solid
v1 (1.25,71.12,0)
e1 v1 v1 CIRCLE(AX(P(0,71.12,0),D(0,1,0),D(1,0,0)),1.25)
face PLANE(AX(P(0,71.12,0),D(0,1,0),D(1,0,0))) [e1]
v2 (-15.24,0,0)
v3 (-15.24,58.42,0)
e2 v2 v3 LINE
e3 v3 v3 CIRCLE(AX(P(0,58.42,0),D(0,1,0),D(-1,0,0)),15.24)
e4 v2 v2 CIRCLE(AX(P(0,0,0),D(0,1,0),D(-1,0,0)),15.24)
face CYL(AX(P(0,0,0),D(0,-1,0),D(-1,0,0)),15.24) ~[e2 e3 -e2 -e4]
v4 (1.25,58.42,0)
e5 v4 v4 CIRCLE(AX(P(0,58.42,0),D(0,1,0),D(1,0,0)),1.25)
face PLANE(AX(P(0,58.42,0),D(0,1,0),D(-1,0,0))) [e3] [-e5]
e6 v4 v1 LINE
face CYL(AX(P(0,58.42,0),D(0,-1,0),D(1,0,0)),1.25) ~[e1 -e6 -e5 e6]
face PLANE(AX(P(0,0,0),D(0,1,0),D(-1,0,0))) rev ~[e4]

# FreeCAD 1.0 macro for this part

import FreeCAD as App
import Part
import Sketcher
from FreeCAD import Vector
Q = App.Units.Quantity

doc = App.newDocument("Part")
body = doc.addObject("PartDesign::Body", "Body")

sketch1 = doc.addObject("Sketcher::SketchObject", "Sketch")
body.addObject(sketch1)
sketch1.AttachmentSupport = (doc.XZ_Plane, [""])
sketch1.MapMode = "FlatFace"
sketch1.addGeometry(Part.Circle(Vector(0, 0, 0), Vector(0, 0, 1), 15.24), False)
sketch1.addConstraint([
    Sketcher.Constraint("Coincident", 0, 3, -1, 1),
    Sketcher.Constraint("Diameter", 0, Q("1.2 in")),
])
pad1 = doc.addObject("PartDesign::Pad", "Pad")
body.addObject(pad1)
pad1.Profile = sketch1
pad1.Length = Q("2.3 in")
pad1.Reversed = True

sketch2 = doc.addObject("Sketcher::SketchObject", "Sketch001")
body.addObject(sketch2)
sketch2.AttachmentSupport = (doc.XZ_Plane, [""])
sketch2.MapMode = "FlatFace"
sketch2.AttachmentOffset = App.Placement(Vector(0, 0, -2.3 * 25.4), App.Rotation())
sketch2.addGeometry(Part.Circle(Vector(0, 0, 0), Vector(0, 0, 1), 1.25), False)
sketch2.addConstraint([
    Sketcher.Constraint("Coincident", 0, 3, -1, 1),
    Sketcher.Constraint("Diameter", 0, 2.5),
])
pad2 = doc.addObject("PartDesign::Pad", "Pad001")
body.addObject(pad2)
pad2.Profile = sketch2
pad2.Length = Q("0.5 in")
pad2.Reversed = True

doc.recompute()
